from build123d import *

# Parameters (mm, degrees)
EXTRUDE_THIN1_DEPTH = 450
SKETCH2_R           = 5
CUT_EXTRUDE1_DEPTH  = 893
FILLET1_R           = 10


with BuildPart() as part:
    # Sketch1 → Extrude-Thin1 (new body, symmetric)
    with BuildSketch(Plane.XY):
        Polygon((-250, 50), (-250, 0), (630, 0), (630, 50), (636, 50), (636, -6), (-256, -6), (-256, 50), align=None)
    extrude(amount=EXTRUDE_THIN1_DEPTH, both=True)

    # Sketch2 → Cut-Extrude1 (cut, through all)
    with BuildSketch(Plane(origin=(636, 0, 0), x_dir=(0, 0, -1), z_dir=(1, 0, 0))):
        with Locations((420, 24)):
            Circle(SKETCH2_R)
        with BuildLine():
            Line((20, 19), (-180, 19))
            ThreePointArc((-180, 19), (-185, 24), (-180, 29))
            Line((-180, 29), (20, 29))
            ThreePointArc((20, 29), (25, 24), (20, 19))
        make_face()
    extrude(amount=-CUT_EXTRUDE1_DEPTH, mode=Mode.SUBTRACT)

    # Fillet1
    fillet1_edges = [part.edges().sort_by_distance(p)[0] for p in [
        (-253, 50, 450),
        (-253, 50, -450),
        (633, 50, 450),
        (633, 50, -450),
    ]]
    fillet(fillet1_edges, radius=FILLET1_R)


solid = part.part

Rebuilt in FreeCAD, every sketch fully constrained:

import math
import FreeCAD as App
import Part
import Sketcher
from FreeCAD import Vector


def edges_at(feature, points):
    """Names of the edges that pass closest to the given points."""
    edges = feature.Shape.Edges
    near = lambda p: min(range(len(edges)), key=lambda i: edges[i].distToShape(Part.Vertex(*p))[0])
    return sorted({f"Edge{near(p) + 1}" for p in points})


def add_polygon(sketch, points):
    """Adds a closed chain of lines whose ends are joined by coincident constraints."""
    first, n = sketch.GeometryCount, len(points)
    for a, b in zip(points, points[1:] + points[:1]):
        sketch.addGeometry(Part.LineSegment(App.Vector(*a, 0), App.Vector(*b, 0)), False)
    for i in range(n):
        sketch.addConstraint(Sketcher.Constraint("Coincident", first + i, 2, first + (i + 1) % n, 1))

doc = App.newDocument("Part")
body = doc.addObject("PartDesign::Body", "Body")

sketch1 = doc.addObject("Sketcher::SketchObject", "Sketch")
body.addObject(sketch1)
sketch1.AttachmentSupport = (doc.XY_Plane, [""])
sketch1.MapMode = "FlatFace"
add_polygon(sketch1, [(-250, 0), (-250, 50), (-256, 50), (-256, -6), (636, -6), (636, 50), (630, 50), (630, 0)])
sketch1.addConstraint(Sketcher.Constraint("Vertical", 0))
sketch1.addConstraint(Sketcher.Constraint("Horizontal", 1))
sketch1.addConstraint(Sketcher.Constraint("Vertical", 2))
sketch1.addConstraint(Sketcher.Constraint("Horizontal", 3))
sketch1.addConstraint(Sketcher.Constraint("Vertical", 4))
sketch1.addConstraint(Sketcher.Constraint("Horizontal", 5))
sketch1.addConstraint(Sketcher.Constraint("Vertical", 6))
sketch1.addConstraint(Sketcher.Constraint("Horizontal", 7))
sketch1.addConstraint(Sketcher.Constraint("PointOnObject", 6, 2, -1))
sketch1.addConstraint(Sketcher.Constraint("Horizontal", 1, 2, 4, 2))
sketch1.addConstraint(Sketcher.Constraint("Equal", 1, 5))
sketch1.addConstraint(Sketcher.Constraint("DistanceX", 1, 2, 1, 1, 6.0))
sketch1.addConstraint(Sketcher.Constraint("DistanceX", 3, 1, 3, 2, 892.0))
sketch1.addConstraint(Sketcher.Constraint("DistanceY", 0, 1, 0, 2, 50.0))
sketch1.addConstraint(Sketcher.Constraint("DistanceY", 2, 2, 2, 1, 56.0))
sketch1.addConstraint(Sketcher.Constraint("DistanceX", 0, 2, -1, 1, 250.0))
pad1 = doc.addObject("PartDesign::Pad", "Pad")
body.addObject(pad1)
pad1.Profile = sketch1
pad1.Length = 900
pad1.Midplane = True

sketch2 = doc.addObject("Sketcher::SketchObject", "Sketch001")
body.addObject(sketch2)
sketch2.AttachmentSupport = (doc.YZ_Plane, [""])
sketch2.MapMode = "FlatFace"
sketch2.AttachmentOffset = App.Placement(Vector(0, 0, 636), App.Rotation())
sketch2.addGeometry(Part.Circle(Vector(24, -420, 0), Vector(0, 0, 1), 5), False)
sketch2.addGeometry(Part.LineSegment(Vector(19, 180, 0), Vector(19, -20, 0)), False)
sketch2.addGeometry(Part.ArcOfCircle(Part.Circle(Vector(24, -20, 0), Vector(0, 0, 1), 5), math.radians(180), math.radians(360)), False)
sketch2.addGeometry(Part.LineSegment(Vector(29, -20, 0), Vector(29, 180, 0)), False)
sketch2.addGeometry(Part.ArcOfCircle(Part.Circle(Vector(24, 180, 0), Vector(0, 0, 1), 5), math.radians(0), math.radians(180)), False)
sketch2.addConstraint(Sketcher.Constraint("Tangent", 1, 2, 2, 1))
sketch2.addConstraint(Sketcher.Constraint("Tangent", 2, 2, 3, 1))
sketch2.addConstraint(Sketcher.Constraint("Tangent", 3, 2, 4, 1))
sketch2.addConstraint(Sketcher.Constraint("Tangent", 4, 2, 1, 1))
sketch2.addConstraint(Sketcher.Constraint("Vertical", 1))
sketch2.addConstraint(Sketcher.Constraint("Vertical", 3))
sketch2.addConstraint(Sketcher.Constraint("Equal", 0, 2))
sketch2.addConstraint(Sketcher.Constraint("Vertical", 0, 3, 2, 3))
sketch2.addConstraint(Sketcher.Constraint("Diameter", 0, 10.0))
sketch2.addConstraint(Sketcher.Constraint("DistanceY", 1, 2, 1, 1, 200.0))
sketch2.addConstraint(Sketcher.Constraint("DistanceX", -1, 1, 0, 3, 24.0))
sketch2.addConstraint(Sketcher.Constraint("DistanceY", 0, 3, -1, 1, 420.0))
sketch2.addConstraint(Sketcher.Constraint("DistanceY", 2, 3, -1, 1, 20.0))
pocket1 = doc.addObject("PartDesign::Pocket", "Pocket")
body.addObject(pocket1)
pocket1.Profile = sketch2
pocket1.Type = "ThroughAll"
doc.recompute()

fillet = doc.addObject("PartDesign::Fillet", "Fillet")
body.addObject(fillet)
fillet.Base = (pocket1, edges_at(pocket1, [
    (-253, 50, 450),
    (-253, 50, -450),
    (633, 50, 450),
    (633, 50, -450),
]))
fillet.Radius = 10

doc.recompute()
